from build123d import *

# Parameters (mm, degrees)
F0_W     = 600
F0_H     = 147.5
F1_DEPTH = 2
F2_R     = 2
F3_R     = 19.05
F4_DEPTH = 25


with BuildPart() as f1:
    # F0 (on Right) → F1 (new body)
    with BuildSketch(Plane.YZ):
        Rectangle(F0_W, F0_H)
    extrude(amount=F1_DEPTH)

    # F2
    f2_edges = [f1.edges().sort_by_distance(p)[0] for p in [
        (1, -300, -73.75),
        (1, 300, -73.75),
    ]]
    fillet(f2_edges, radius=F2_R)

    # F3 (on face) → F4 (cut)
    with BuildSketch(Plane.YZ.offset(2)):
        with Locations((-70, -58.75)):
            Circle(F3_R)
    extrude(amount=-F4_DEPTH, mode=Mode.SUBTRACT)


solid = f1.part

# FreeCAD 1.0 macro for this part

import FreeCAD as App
import Part
import Sketcher


def edges_at(feature, points):
    """Names of the edges that pass closest to the given points."""
    edges = feature.Shape.Edges
    near = lambda p: min(range(len(edges)), key=lambda i: edges[i].distToShape(Part.Vertex(*p))[0])
    return sorted({f"Edge{near(p) + 1}" for p in points})


def add_polygon(sketch, points):
    """Adds a closed chain of lines whose ends are joined by coincident constraints."""
    first, n = sketch.GeometryCount, len(points)
    for a, b in zip(points, points[1:] + points[:1]):
        sketch.addGeometry(Part.LineSegment(App.Vector(*a, 0), App.Vector(*b, 0)), False)
    for i in range(n):
        sketch.addConstraint(Sketcher.Constraint("Coincident", first + i, 2, first + (i + 1) % n, 1))

doc = App.newDocument("Part")
body = doc.addObject("PartDesign::Body", "Body")

# Sketch on YZ plane
sketch1 = body.newObject("Sketcher::SketchObject", "Sketch")
sketch1.AttachmentSupport = (doc.getObject("YZ_Plane"), [""])
sketch1.MapMode = "FlatFace"
add_polygon(sketch1, [(-300, 74), (-300, -74), (300, -74), (300, 74)])  # lines 0-3
sketch1.addConstraint([
    Sketcher.Constraint("Vertical", 0),
    Sketcher.Constraint("Horizontal", 1),
    Sketcher.Constraint("Vertical", 2),
    Sketcher.Constraint("Horizontal", 3),
    Sketcher.Constraint("Symmetric", 0, 2, 2, 2, -1, 1),
    Sketcher.Constraint("DistanceX", 1, 1, 1, 2, 600.0),
    Sketcher.Constraint("DistanceY", 0, 2, 0, 1, 147.5),
])
pad1 = body.newObject("PartDesign::Pad", "Pad")
pad1.Profile = sketch1
pad1.Length = 2
doc.recompute()

fillet = body.newObject("PartDesign::Fillet", "Fillet")
fillet.Base = (pad1, edges_at(pad1, [(1, -300, -73.75), (1, 300, -73.75)]))
fillet.Radius = 2

# Sketch on YZ plane
sketch2 = body.newObject("Sketcher::SketchObject", "Sketch001")
sketch2.AttachmentSupport = (doc.getObject("YZ_Plane"), [""])
sketch2.MapMode = "FlatFace"
sketch2.AttachmentOffset = App.Placement(App.Vector(0, 0, 2), App.Rotation())
sketch2.addGeometry(Part.Circle(App.Vector(-70, -59, 0), App.Vector(0, 0, 1), 19), False)
sketch2.addConstraint([
    Sketcher.Constraint("Diameter", 0, 38.1),
    Sketcher.Constraint("DistanceX", 0, 3, -1, 1, 70.0),
    Sketcher.Constraint("DistanceY", 0, 3, -1, 1, 58.75),
])
pocket1 = body.newObject("PartDesign::Pocket", "Pocket")
pocket1.Profile = sketch2
pocket1.Length = 25

doc.recompute()
